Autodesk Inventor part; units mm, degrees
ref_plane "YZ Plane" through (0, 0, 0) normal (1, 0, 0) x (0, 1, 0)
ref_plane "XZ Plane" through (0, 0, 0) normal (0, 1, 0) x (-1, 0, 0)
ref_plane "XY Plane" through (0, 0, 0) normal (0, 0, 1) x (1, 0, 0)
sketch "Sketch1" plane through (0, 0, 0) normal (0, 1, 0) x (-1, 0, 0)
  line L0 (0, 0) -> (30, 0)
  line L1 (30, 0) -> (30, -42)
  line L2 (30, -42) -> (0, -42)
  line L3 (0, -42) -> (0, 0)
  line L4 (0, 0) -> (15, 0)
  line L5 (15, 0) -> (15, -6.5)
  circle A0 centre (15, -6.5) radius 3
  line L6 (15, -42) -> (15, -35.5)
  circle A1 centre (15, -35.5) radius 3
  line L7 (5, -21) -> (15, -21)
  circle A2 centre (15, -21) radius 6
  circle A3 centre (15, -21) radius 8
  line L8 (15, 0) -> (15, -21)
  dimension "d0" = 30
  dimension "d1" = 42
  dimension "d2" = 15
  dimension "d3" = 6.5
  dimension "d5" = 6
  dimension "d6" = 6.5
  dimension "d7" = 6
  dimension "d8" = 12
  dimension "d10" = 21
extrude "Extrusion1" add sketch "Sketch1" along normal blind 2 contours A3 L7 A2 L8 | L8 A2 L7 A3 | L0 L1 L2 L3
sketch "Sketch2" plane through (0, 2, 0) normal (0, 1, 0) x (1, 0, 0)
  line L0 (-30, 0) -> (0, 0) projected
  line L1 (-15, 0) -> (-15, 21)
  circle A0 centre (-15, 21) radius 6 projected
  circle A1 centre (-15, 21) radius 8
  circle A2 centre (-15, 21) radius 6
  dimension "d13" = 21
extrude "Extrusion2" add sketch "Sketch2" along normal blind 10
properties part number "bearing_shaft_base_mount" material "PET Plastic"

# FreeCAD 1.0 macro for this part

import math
import FreeCAD as App
import Part
import Sketcher

doc = App.newDocument("Part")
body = doc.addObject("PartDesign::Body", "Body")

# Sketch on XZ plane
sketch1 = doc.addObject("Sketcher::SketchObject", "Sketch")
body.addObject(sketch1)
sketch1.AttachmentSupport = (doc.XZ_Plane, [""])
sketch1.MapMode = "FlatFace"
sketch1.addGeometry([
    Part.LineSegment(App.Vector(-15, 0, 0), App.Vector(0, 0, 0)),  # 0
    Part.LineSegment(App.Vector(0, 0, 0), App.Vector(0, -42, 0)),  # 1
    Part.LineSegment(App.Vector(0, -42, 0), App.Vector(-15, -42, 0)),  # 2
    Part.LineSegment(App.Vector(-15, -42, 0), App.Vector(-30, -42, 0)),  # 3
    Part.LineSegment(App.Vector(-30, -42, 0), App.Vector(-30, 0, 0)),  # 4
    Part.LineSegment(App.Vector(-30, 0, 0), App.Vector(-15, 0, 0)),  # 5
    Part.Circle(App.Vector(-15, -21, 0), App.Vector(0, 0, 1), 6),  # 6
    Part.Circle(App.Vector(-15, -35.5, 0), App.Vector(0, 0, 1), 3),  # 7
    Part.ArcOfCircle(Part.Circle(App.Vector(-15, -6.5, 0), App.Vector(0, 0, 1), 3), math.radians(-90), math.radians(90)),  # 8
    Part.ArcOfCircle(Part.Circle(App.Vector(-15, -6.5, 0), App.Vector(0, 0, 1), 3), math.radians(90), math.radians(270)),  # 9
], False)
sketch1.addConstraint([
    Sketcher.Constraint("Coincident", 0, 2, 1, 1),
    Sketcher.Constraint("Coincident", 1, 2, 2, 1),
    Sketcher.Constraint("Coincident", 2, 2, 3, 1),
    Sketcher.Constraint("Coincident", 3, 2, 4, 1),
    Sketcher.Constraint("Coincident", 4, 2, 5, 1),
    Sketcher.Constraint("Coincident", 5, 2, 0, 1),
    Sketcher.Constraint("Tangent", 8, 1, 9, 2),
    Sketcher.Constraint("Coincident", 9, 1, 8, 2),
    Sketcher.Constraint("Horizontal", 0),
    Sketcher.Constraint("Vertical", 1),
    Sketcher.Constraint("Horizontal", 2),
    Sketcher.Constraint("Horizontal", 3),
    Sketcher.Constraint("Vertical", 4),
    Sketcher.Constraint("Horizontal", 5),
    Sketcher.Constraint("Coincident", 0, 2, -1, 1),
    Sketcher.Constraint("Equal", 7, 8),
    Sketcher.Constraint("Vertical", 6, 3, 7, 3),
    Sketcher.Constraint("Vertical", 7, 3, 8, 3),
    Sketcher.Constraint("Vertical", 9, 3, 2, 2),
    Sketcher.Constraint("Vertical", 2, 2, 5, 2),
    Sketcher.Constraint("Vertical", 5, 2, 8, 1),
    Sketcher.Constraint("Vertical", 8, 1, 9, 1),
    Sketcher.Constraint("Equal", 2, 3),
    Sketcher.Constraint("Diameter", 6, 12.0),
    Sketcher.Constraint("Diameter", 7, 6.0),
    Sketcher.Constraint("DistanceX", 0, 1, 0, 2, 15.0),
    Sketcher.Constraint("DistanceY", 1, 2, 1, 1, 42.0),
    Sketcher.Constraint("DistanceY", 6, 3, -1, 1, 21.0),
    Sketcher.Constraint("DistanceY", 8, 3, -1, 1, 6.5),
    Sketcher.Constraint("DistanceY", 1, 2, 7, 3, 6.5),
])
pad1 = doc.addObject("PartDesign::Pad", "Pad")
body.addObject(pad1)
pad1.Profile = sketch1
pad1.Length = 2
pad1.Reversed = True

# Sketch on XZ plane
sketch2 = doc.addObject("Sketcher::SketchObject", "Sketch001")
body.addObject(sketch2)
sketch2.AttachmentSupport = (doc.XZ_Plane, [""])
sketch2.MapMode = "FlatFace"
sketch2.AttachmentOffset = App.Placement(App.Vector(0, 0, -2), App.Rotation())
sketch2.addGeometry([
    Part.Circle(App.Vector(-15, -21, 0), App.Vector(0, 0, 1), 8),
    Part.Circle(App.Vector(-15, -21, 0), App.Vector(0, 0, 1), 6),
], False)
sketch2.addConstraint([
    Sketcher.Constraint("Coincident", 1, 3, 0, 3),
    Sketcher.Constraint("Diameter", 0, 16.0),
    Sketcher.Constraint("Diameter", 1, 12.0),
    Sketcher.Constraint("DistanceY", 0, 3, -1, 1, 21.0),
    Sketcher.Constraint("DistanceX", 0, 3, -1, 1, 15.0),
])
pad2 = doc.addObject("PartDesign::Pad", "Pad001")
body.addObject(pad2)
pad2.Profile = sketch2
pad2.Length = 10
pad2.Reversed = True

doc.recompute()
